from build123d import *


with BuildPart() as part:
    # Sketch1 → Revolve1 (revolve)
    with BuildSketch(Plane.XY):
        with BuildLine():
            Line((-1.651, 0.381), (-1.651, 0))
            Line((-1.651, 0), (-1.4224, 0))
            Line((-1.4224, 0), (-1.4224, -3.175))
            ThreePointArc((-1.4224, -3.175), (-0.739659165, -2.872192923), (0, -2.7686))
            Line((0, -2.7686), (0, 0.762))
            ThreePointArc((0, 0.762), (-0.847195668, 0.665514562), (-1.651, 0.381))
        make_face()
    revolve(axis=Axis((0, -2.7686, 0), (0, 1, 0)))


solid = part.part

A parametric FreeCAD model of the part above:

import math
import FreeCAD as App
import Part
import Sketcher
from FreeCAD import Vector
Q = App.Units.Quantity

doc = App.newDocument("Part")
body = doc.addObject("PartDesign::Body", "Body")

sketch1 = body.newObject("Sketcher::SketchObject", "Sketch")
sketch1.AttachmentSupport = (doc.getObject("XY_Plane"), [""])
sketch1.MapMode = "FlatFace"
sketch1.addGeometry([
    Part.LineSegment(Vector(-1.651, 0.381, 0), Vector(-1.651, 0, 0)),
    Part.LineSegment(Vector(-1.651, 0, 0), Vector(-1.4224, 0, 0)),
    Part.LineSegment(Vector(-1.4224, 0, 0), Vector(-1.4224, -3.175, 0)),
    Part.ArcOfCircle(Part.Circle(Vector(0, -5.461, 0), Vector(0, 0, 1), 2.6924), math.radians(90), math.radians(121.890792)),
    Part.LineSegment(Vector(0, -2.7686, 0), Vector(0, 0.762, 0)),
    Part.ArcOfCircle(Part.Circle(Vector(0, -3.005667, 0), Vector(0, 0, 1), 3.767667), math.radians(90), math.radians(115.989234)),
], False)
sketch1.addConstraint([
    Sketcher.Constraint("Coincident", 0, 2, 1, 1),
    Sketcher.Constraint("Coincident", 1, 2, 2, 1),
    Sketcher.Constraint("Coincident", 2, 2, 3, 2),
    Sketcher.Constraint("Coincident", 3, 1, 4, 1),
    Sketcher.Constraint("Coincident", 4, 2, 5, 1),
    Sketcher.Constraint("Coincident", 5, 2, 0, 1),
    Sketcher.Constraint("Vertical", 0),
    Sketcher.Constraint("Horizontal", 1),
    Sketcher.Constraint("Vertical", 2),
    Sketcher.Constraint("Vertical", 4),
    Sketcher.Constraint("PointOnObject", 3, 3, -2),
    Sketcher.Constraint("PointOnObject", 5, 3, -2),
    Sketcher.Constraint("PointOnObject", 0, 2, -1),
    Sketcher.Constraint("PointOnObject", 3, 1, -2),
    Sketcher.Constraint("Radius", 3, Q("0.106 in")),
    Sketcher.Constraint("DistanceX", 1, 1, 1, 2, Q("0.009 in")),
    Sketcher.Constraint("DistanceY", 0, 2, 0, 1, Q("0.015 in")),
    Sketcher.Constraint("DistanceY", 2, 2, 2, 1, Q("0.125 in")),
    Sketcher.Constraint("DistanceY", 4, 1, 4, 2, Q("0.139 in")),
    Sketcher.Constraint("DistanceY", -1, 1, 4, 2, Q("0.03 in")),
])
revolution = body.newObject("PartDesign::Revolution", "Revolution")
revolution.Profile = sketch1
revolution.ReferenceAxis = (sketch1, ["V_Axis"])
revolution.Angle = 360

doc.recompute()
